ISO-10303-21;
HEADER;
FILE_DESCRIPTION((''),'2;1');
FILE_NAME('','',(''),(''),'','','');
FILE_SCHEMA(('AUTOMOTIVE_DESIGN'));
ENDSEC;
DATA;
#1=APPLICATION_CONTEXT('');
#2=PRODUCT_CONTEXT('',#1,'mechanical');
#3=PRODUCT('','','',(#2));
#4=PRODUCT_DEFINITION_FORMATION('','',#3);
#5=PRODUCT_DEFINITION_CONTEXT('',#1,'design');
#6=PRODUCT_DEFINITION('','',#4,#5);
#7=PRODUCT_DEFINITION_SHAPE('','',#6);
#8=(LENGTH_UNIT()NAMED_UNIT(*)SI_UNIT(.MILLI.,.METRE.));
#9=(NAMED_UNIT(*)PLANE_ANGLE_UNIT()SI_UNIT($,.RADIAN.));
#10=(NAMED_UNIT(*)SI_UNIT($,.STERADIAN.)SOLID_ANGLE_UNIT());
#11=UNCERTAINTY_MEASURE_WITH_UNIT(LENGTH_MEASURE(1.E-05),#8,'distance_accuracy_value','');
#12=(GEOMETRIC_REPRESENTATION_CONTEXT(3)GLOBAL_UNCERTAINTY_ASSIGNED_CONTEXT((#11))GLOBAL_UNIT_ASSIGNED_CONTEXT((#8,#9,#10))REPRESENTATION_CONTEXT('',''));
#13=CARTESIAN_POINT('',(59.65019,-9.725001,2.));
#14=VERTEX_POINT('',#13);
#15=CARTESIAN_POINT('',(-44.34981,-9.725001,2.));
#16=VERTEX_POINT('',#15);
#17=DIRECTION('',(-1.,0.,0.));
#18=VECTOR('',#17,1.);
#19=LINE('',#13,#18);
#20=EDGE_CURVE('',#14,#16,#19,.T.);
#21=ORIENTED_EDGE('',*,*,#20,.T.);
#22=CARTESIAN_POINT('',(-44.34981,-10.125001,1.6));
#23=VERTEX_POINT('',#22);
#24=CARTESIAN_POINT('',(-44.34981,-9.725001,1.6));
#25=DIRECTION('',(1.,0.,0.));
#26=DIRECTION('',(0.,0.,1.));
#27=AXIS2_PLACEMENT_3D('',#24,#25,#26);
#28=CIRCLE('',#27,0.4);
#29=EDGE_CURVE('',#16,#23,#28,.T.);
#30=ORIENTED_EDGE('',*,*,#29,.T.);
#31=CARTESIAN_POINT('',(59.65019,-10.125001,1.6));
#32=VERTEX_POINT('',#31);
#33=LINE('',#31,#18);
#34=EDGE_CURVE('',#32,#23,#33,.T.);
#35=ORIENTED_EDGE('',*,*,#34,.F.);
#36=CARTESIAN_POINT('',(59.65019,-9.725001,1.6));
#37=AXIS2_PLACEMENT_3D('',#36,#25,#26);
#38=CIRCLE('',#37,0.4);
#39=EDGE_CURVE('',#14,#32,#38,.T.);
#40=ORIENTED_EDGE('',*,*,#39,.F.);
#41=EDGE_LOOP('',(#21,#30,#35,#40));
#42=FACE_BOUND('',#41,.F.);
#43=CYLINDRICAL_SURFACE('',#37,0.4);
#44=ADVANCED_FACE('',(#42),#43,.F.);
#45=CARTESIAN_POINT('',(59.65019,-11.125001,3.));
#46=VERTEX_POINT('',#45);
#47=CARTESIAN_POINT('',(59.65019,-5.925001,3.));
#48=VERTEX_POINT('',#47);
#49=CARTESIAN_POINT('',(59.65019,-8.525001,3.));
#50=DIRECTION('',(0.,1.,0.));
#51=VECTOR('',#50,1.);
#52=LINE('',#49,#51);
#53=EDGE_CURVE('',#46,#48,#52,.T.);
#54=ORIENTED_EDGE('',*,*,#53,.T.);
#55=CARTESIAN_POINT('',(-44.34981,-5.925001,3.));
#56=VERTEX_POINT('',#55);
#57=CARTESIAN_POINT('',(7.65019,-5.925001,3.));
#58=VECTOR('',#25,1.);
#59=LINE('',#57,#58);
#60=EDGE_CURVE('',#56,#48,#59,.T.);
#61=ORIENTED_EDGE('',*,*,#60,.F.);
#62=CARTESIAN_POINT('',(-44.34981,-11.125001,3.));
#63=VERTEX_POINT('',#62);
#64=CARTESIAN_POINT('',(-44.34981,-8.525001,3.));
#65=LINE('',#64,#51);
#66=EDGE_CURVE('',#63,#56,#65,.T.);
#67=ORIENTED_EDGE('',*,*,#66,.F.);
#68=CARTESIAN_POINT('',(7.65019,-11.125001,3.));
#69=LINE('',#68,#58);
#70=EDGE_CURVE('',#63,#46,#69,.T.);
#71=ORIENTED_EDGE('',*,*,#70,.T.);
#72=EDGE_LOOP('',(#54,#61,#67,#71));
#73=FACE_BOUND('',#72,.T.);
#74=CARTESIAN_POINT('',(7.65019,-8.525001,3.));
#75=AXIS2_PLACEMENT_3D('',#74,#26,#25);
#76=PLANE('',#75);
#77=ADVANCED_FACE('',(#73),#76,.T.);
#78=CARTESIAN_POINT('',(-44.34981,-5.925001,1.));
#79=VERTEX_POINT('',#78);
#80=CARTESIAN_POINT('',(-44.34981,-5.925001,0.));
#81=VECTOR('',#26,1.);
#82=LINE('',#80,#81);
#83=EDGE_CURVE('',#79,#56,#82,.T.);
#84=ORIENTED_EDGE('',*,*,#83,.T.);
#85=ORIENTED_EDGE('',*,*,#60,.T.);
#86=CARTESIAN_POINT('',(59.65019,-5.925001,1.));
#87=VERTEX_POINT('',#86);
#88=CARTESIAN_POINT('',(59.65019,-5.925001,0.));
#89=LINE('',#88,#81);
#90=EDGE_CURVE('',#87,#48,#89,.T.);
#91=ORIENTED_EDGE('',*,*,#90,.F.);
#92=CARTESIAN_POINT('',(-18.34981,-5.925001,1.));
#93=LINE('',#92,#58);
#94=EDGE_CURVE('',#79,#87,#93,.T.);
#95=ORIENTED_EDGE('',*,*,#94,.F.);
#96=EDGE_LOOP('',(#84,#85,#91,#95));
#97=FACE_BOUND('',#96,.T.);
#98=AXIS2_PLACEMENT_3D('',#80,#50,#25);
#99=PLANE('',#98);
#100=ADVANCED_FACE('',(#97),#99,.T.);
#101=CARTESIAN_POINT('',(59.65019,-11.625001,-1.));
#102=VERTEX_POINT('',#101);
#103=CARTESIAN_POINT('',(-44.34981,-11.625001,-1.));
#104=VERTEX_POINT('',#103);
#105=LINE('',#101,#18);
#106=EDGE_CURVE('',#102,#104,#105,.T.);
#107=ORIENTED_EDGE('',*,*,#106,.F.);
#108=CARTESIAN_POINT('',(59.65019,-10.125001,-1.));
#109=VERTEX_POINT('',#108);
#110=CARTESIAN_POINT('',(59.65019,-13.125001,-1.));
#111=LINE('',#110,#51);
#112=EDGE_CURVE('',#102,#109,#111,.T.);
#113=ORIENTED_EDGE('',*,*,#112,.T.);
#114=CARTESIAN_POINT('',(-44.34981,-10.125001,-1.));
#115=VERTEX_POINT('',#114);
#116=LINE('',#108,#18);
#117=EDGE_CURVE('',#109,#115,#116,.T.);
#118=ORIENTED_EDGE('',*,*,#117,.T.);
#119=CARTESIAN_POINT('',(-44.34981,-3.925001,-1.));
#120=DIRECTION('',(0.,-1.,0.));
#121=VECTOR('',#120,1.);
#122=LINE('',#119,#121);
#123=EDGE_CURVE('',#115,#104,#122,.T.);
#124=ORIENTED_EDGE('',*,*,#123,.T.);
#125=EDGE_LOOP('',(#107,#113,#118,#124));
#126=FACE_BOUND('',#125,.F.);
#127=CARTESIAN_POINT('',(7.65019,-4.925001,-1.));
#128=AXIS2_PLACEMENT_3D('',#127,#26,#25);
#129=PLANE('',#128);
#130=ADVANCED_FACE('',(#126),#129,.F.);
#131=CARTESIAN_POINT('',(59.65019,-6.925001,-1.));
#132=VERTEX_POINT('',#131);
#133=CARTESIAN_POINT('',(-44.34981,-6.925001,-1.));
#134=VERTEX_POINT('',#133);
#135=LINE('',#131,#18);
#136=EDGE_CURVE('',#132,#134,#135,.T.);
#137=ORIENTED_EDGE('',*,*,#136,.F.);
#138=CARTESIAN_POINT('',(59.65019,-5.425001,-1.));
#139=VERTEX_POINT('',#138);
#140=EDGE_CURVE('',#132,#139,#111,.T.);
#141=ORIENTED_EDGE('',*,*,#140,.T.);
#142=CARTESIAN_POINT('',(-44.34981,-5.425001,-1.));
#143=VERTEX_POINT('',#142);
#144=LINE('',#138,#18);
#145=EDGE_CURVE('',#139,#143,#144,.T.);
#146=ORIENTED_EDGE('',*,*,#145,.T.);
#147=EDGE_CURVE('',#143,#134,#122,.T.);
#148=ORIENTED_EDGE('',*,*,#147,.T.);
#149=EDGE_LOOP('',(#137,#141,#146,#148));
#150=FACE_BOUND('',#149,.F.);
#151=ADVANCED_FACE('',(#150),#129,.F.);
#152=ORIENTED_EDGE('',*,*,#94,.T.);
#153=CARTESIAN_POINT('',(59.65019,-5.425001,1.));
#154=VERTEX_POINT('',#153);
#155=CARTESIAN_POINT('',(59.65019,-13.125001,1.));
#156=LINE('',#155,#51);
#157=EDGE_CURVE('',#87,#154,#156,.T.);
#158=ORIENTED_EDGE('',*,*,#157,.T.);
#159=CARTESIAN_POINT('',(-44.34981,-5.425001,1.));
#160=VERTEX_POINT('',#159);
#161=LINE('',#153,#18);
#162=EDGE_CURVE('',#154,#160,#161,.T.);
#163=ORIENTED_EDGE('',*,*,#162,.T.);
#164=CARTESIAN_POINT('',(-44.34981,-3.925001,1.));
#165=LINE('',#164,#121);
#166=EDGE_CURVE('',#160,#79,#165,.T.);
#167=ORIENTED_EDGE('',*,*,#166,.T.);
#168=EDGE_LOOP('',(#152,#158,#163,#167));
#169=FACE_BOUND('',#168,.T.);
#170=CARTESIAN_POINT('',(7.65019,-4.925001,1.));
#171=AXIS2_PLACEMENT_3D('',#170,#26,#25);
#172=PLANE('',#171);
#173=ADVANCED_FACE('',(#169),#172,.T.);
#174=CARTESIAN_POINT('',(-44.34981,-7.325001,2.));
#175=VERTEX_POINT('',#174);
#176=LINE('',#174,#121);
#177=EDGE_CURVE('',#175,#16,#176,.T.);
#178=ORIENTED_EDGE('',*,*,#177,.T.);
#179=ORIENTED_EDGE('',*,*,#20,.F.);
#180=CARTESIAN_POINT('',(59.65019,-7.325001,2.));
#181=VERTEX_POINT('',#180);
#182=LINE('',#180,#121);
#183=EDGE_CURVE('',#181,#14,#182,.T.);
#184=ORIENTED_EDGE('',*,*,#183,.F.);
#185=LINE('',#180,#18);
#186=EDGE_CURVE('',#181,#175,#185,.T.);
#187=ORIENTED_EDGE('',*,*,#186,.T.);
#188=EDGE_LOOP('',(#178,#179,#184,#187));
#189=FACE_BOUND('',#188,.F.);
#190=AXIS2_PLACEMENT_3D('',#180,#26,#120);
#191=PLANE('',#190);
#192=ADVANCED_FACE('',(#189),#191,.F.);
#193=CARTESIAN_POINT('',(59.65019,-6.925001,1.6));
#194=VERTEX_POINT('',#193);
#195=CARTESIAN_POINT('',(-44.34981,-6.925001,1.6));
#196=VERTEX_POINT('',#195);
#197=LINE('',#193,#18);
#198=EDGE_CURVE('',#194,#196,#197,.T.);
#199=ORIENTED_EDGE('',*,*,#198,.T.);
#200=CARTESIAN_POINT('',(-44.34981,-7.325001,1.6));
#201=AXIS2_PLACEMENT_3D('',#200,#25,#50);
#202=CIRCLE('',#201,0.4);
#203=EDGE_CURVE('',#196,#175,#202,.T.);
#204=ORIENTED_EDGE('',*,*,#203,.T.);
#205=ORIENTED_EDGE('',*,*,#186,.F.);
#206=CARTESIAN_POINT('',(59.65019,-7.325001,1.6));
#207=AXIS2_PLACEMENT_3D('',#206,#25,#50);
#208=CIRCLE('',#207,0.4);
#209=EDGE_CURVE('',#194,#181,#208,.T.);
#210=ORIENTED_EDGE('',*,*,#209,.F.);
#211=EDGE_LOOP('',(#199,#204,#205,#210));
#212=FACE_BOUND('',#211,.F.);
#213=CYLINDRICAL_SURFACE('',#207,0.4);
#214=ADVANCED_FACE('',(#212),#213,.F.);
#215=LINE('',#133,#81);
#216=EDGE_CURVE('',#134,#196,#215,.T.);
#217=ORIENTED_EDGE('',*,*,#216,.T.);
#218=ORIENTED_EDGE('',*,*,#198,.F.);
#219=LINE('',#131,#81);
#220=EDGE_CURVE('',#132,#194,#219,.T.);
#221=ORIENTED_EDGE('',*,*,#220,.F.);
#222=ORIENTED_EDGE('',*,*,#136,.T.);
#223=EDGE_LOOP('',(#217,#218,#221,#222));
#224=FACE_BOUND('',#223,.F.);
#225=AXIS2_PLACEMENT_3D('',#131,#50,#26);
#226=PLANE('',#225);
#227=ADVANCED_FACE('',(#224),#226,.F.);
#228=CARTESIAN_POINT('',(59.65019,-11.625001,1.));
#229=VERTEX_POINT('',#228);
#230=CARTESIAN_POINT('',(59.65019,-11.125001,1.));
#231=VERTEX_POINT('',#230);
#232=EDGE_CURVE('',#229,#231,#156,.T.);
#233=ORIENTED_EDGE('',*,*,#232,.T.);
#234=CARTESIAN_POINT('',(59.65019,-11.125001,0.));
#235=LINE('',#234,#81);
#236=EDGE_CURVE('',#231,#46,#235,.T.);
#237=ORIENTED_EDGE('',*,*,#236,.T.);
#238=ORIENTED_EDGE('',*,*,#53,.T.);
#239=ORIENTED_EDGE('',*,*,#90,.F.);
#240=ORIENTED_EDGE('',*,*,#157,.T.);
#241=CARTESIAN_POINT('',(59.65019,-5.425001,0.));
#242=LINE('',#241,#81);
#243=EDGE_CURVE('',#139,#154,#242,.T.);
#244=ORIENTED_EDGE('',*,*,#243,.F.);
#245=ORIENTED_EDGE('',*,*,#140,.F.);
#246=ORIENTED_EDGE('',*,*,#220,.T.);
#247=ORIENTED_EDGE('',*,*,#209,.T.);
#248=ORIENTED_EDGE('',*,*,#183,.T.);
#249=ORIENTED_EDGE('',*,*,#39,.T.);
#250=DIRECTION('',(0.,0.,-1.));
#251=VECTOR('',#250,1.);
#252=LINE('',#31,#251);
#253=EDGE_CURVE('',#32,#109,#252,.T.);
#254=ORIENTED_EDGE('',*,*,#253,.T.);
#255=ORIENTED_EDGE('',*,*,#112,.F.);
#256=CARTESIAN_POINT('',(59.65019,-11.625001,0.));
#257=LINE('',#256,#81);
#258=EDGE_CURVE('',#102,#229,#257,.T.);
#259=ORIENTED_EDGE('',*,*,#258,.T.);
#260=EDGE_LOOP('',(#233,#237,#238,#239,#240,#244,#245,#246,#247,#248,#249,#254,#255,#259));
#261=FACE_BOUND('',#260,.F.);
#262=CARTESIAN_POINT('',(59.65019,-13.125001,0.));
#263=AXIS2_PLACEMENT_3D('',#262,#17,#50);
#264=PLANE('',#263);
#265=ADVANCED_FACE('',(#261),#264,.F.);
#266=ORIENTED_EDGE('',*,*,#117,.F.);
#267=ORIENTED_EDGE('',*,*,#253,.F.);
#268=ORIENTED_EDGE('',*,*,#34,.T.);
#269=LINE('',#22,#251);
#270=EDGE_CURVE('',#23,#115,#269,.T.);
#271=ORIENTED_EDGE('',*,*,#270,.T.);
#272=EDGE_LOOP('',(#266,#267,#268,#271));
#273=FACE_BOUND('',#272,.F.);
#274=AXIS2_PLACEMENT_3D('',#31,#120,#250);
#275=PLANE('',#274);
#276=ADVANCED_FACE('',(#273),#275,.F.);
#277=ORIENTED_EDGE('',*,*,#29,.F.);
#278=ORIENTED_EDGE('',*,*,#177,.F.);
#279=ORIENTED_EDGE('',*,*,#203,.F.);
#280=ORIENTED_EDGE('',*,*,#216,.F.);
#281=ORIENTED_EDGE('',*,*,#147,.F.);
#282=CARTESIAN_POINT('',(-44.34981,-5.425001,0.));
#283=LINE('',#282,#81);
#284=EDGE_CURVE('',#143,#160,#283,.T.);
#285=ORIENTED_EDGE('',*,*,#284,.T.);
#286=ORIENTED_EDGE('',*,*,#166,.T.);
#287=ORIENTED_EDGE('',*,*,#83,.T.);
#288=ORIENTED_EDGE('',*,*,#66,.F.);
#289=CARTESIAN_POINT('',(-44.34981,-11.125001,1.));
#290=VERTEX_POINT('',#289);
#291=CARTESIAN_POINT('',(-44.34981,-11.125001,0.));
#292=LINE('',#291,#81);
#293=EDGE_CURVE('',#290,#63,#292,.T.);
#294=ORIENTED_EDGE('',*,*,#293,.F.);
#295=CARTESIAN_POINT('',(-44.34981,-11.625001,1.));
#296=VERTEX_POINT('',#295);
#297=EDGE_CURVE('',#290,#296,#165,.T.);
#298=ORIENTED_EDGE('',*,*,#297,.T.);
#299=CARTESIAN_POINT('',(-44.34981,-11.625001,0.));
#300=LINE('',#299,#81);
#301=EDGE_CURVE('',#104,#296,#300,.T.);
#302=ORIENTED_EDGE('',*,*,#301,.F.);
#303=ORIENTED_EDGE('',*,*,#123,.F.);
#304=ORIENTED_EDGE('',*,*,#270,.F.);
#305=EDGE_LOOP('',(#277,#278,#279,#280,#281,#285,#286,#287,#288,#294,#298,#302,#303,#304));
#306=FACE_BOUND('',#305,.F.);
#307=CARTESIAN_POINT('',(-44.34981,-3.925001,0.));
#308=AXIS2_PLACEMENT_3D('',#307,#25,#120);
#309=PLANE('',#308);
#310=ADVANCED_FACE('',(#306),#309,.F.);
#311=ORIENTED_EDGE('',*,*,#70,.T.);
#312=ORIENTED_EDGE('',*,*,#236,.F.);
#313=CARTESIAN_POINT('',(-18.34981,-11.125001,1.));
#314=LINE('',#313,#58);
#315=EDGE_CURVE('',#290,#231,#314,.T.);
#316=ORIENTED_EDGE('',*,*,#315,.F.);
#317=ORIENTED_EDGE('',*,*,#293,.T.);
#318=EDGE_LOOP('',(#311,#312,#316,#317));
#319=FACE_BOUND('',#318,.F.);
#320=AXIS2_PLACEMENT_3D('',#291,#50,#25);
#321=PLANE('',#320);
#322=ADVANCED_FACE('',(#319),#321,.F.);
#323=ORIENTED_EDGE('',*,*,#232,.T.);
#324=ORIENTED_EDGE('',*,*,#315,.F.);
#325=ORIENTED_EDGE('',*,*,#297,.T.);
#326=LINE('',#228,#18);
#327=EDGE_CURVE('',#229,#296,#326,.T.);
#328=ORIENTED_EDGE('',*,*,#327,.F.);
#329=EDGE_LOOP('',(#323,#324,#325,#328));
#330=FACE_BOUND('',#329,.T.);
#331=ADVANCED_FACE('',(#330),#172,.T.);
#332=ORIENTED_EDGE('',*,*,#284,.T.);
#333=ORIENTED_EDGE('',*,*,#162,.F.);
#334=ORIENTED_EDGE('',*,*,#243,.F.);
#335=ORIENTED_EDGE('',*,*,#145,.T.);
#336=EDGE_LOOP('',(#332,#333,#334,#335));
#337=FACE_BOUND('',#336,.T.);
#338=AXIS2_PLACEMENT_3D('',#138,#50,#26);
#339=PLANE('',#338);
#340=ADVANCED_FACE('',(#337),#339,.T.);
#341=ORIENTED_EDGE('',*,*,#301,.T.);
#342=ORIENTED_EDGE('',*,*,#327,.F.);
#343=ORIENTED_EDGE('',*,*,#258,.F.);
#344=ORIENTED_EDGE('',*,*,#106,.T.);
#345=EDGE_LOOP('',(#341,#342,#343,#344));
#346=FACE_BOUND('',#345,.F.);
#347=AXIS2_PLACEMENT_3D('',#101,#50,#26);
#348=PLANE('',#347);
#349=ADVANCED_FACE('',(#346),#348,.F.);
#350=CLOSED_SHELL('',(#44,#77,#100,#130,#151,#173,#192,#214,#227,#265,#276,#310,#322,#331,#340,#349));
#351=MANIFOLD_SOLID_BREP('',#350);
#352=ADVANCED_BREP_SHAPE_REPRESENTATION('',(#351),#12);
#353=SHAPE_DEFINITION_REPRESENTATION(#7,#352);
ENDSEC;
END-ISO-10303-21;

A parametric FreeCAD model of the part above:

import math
import FreeCAD as App
import Part
import Sketcher
from FreeCAD import Vector

doc = App.newDocument("Part")
params = doc.addObject("Spreadsheet::Sheet", "Params")
for row, (alias, value) in enumerate([
    ("sketch1_width", "104 mm"),
    ("sketch1_height", "5.2 mm"),
    ("pad1_length", "3 mm"),
    ("sketch2_width", "104 mm"),
    ("sketch2_height", "9.2 mm"),
    ("pad2_length", "1 mm"),
    ("pad2_length2", "1 mm"),
    ("sketch3_radius", "0.4 mm"),
    ("sketch3_height", "2 mm"),
    ("sketch3_width", "1.5 mm"),
    ("sketch3_width2", "3.2 mm"),
    ("sketch3_height2", "2.6 mm"),
    ("pocket1_length", "104 mm"),
], start=1):
    params.set(f"A{row}", alias)
    params.set(f"B{row}", "=" + value)
    params.setAlias(f"B{row}", alias)

body = doc.addObject("PartDesign::Body", "Body")

# Sketch on XY plane
sketch1 = body.newObject("Sketcher::SketchObject", "Sketch")
sketch1.AttachmentSupport = (doc.getObject("XY_Plane"), [""])
sketch1.MapMode = "FlatFace"
sketch1.addGeometry(Part.LineSegment(Vector(-44.34981, -5.925001, 0), Vector(-44.34981, -11.125001, 0)), False)
sketch1.addGeometry(Part.LineSegment(Vector(-44.34981, -11.125001, 0), Vector(59.65019, -11.125001, 0)), False)
sketch1.addGeometry(Part.LineSegment(Vector(59.65019, -11.125001, 0), Vector(59.65019, -5.925001, 0)), False)
sketch1.addGeometry(Part.LineSegment(Vector(59.65019, -5.925001, 0), Vector(-44.34981, -5.925001, 0)), False)
sketch1.addConstraint(Sketcher.Constraint("Coincident", 0, 2, 1, 1))
sketch1.addConstraint(Sketcher.Constraint("Coincident", 1, 2, 2, 1))
sketch1.addConstraint(Sketcher.Constraint("Coincident", 2, 2, 3, 1))
sketch1.addConstraint(Sketcher.Constraint("Coincident", 3, 2, 0, 1))
sketch1.addConstraint(Sketcher.Constraint("Vertical", 0))
sketch1.addConstraint(Sketcher.Constraint("Horizontal", 1))
sketch1.addConstraint(Sketcher.Constraint("Vertical", 2))
sketch1.addConstraint(Sketcher.Constraint("Horizontal", 3))
sketch1.addConstraint(Sketcher.Constraint("DistanceX", 1, 1, 1, 2, 104.0))
sketch1.addConstraint(Sketcher.Constraint("DistanceY", 0, 2, 0, 1, 5.2))
sketch1.addConstraint(Sketcher.Constraint("DistanceY", 0, 2, -1, 1, 11.125001))
sketch1.addConstraint(Sketcher.Constraint("DistanceX", 0, 2, -1, 1, 44.34981))
sketch1.setExpression("Constraints[8]", "Params.sketch1_width")
sketch1.setExpression("Constraints[9]", "Params.sketch1_height")
pad1 = body.newObject("PartDesign::Pad", "Pad")
pad1.Profile = sketch1
pad1.setExpression("Length", "Params.pad1_length")

# Sketch on XY plane
sketch2 = body.newObject("Sketcher::SketchObject", "Sketch001")
sketch2.AttachmentSupport = (doc.getObject("XY_Plane"), [""])
sketch2.MapMode = "FlatFace"
sketch2.addGeometry(Part.LineSegment(Vector(-44.34981, -3.925001, 0), Vector(-44.34981, -13.125001, 0)), False)
sketch2.addGeometry(Part.LineSegment(Vector(-44.34981, -13.125001, 0), Vector(59.65019, -13.125001, 0)), False)
sketch2.addGeometry(Part.LineSegment(Vector(59.65019, -13.125001, 0), Vector(59.65019, -3.925001, 0)), False)
sketch2.addGeometry(Part.LineSegment(Vector(59.65019, -3.925001, 0), Vector(-44.34981, -3.925001, 0)), False)
sketch2.addConstraint(Sketcher.Constraint("Coincident", 0, 2, 1, 1))
sketch2.addConstraint(Sketcher.Constraint("Coincident", 1, 2, 2, 1))
sketch2.addConstraint(Sketcher.Constraint("Coincident", 2, 2, 3, 1))
sketch2.addConstraint(Sketcher.Constraint("Coincident", 3, 2, 0, 1))
sketch2.addConstraint(Sketcher.Constraint("Vertical", 0))
sketch2.addConstraint(Sketcher.Constraint("Horizontal", 1))
sketch2.addConstraint(Sketcher.Constraint("Vertical", 2))
sketch2.addConstraint(Sketcher.Constraint("Horizontal", 3))
sketch2.addConstraint(Sketcher.Constraint("DistanceX", 1, 1, 1, 2, 104.0))
sketch2.addConstraint(Sketcher.Constraint("DistanceY", 0, 2, 0, 1, 9.2))
sketch2.addConstraint(Sketcher.Constraint("DistanceY", 0, 2, -1, 1, 13.125001))
sketch2.addConstraint(Sketcher.Constraint("DistanceX", 0, 2, -1, 1, 44.34981))
sketch2.setExpression("Constraints[8]", "Params.sketch2_width")
sketch2.setExpression("Constraints[9]", "Params.sketch2_height")
pad2 = body.newObject("PartDesign::Pad", "Pad001")
pad2.Profile = sketch2
pad2.Type = "TwoLengths"
pad2.setExpression("Length", "Params.pad2_length")
pad2.setExpression("Length2", "Params.pad2_length2")
pad2.Reversed = True

# Sketch on YZ plane
sketch3 = body.newObject("Sketcher::SketchObject", "Sketch002")
sketch3.AttachmentSupport = (doc.getObject("YZ_Plane"), [""])
sketch3.MapMode = "FlatFace"
sketch3.AttachmentOffset = App.Placement(Vector(0, 0, 59.65019), App.Rotation())
sketch3.addGeometry(Part.LineSegment(Vector(-13.125001, 1, 0), Vector(-13.125001, -1, 0)), False)
sketch3.addGeometry(Part.LineSegment(Vector(-13.125001, -1, 0), Vector(-11.625001, -1, 0)), False)
sketch3.addGeometry(Part.LineSegment(Vector(-11.625001, -1, 0), Vector(-11.625001, 1, 0)), False)
sketch3.addGeometry(Part.LineSegment(Vector(-11.625001, 1, 0), Vector(-13.125001, 1, 0)), False)
sketch3.addGeometry(Part.LineSegment(Vector(-10.125001, -1, 0), Vector(-6.925001, -1, 0)), False)
sketch3.addGeometry(Part.LineSegment(Vector(-6.925001, -1, 0), Vector(-6.925001, 1.6, 0)), False)
sketch3.addGeometry(Part.ArcOfCircle(Part.Circle(Vector(-7.325001, 1.6, 0), Vector(0, 0, 1), 0.4), math.radians(0), math.radians(90)), False)
sketch3.addGeometry(Part.LineSegment(Vector(-7.325001, 2, 0), Vector(-9.725001, 2, 0)), False)
sketch3.addGeometry(Part.ArcOfCircle(Part.Circle(Vector(-9.725001, 1.6, 0), Vector(0, 0, 1), 0.4), math.radians(90), math.radians(180)), False)
sketch3.addGeometry(Part.LineSegment(Vector(-10.125001, 1.6, 0), Vector(-10.125001, -1, 0)), False)
sketch3.addGeometry(Part.LineSegment(Vector(-5.425001, 1, 0), Vector(-5.425001, -1, 0)), False)
sketch3.addGeometry(Part.LineSegment(Vector(-5.425001, -1, 0), Vector(-3.925001, -1, 0)), False)
sketch3.addGeometry(Part.LineSegment(Vector(-3.925001, -1, 0), Vector(-3.925001, 1, 0)), False)
sketch3.addGeometry(Part.LineSegment(Vector(-3.925001, 1, 0), Vector(-5.425001, 1, 0)), False)
sketch3.addConstraint(Sketcher.Constraint("Coincident", 0, 2, 1, 1))
sketch3.addConstraint(Sketcher.Constraint("Coincident", 1, 2, 2, 1))
sketch3.addConstraint(Sketcher.Constraint("Coincident", 2, 2, 3, 1))
sketch3.addConstraint(Sketcher.Constraint("Coincident", 3, 2, 0, 1))
sketch3.addConstraint(Sketcher.Constraint("Coincident", 4, 2, 5, 1))
sketch3.addConstraint(Sketcher.Constraint("Tangent", 5, 2, 6, 1))
sketch3.addConstraint(Sketcher.Constraint("Tangent", 6, 2, 7, 1))
sketch3.addConstraint(Sketcher.Constraint("Tangent", 7, 2, 8, 1))
sketch3.addConstraint(Sketcher.Constraint("Tangent", 8, 2, 9, 1))
sketch3.addConstraint(Sketcher.Constraint("Coincident", 9, 2, 4, 1))
sketch3.addConstraint(Sketcher.Constraint("Coincident", 10, 2, 11, 1))
sketch3.addConstraint(Sketcher.Constraint("Coincident", 11, 2, 12, 1))
sketch3.addConstraint(Sketcher.Constraint("Coincident", 12, 2, 13, 1))
sketch3.addConstraint(Sketcher.Constraint("Coincident", 13, 2, 10, 1))
sketch3.addConstraint(Sketcher.Constraint("Vertical", 0))
sketch3.addConstraint(Sketcher.Constraint("Horizontal", 1))
sketch3.addConstraint(Sketcher.Constraint("Vertical", 2))
sketch3.addConstraint(Sketcher.Constraint("Horizontal", 3))
sketch3.addConstraint(Sketcher.Constraint("Horizontal", 4))
sketch3.addConstraint(Sketcher.Constraint("Vertical", 5))
sketch3.addConstraint(Sketcher.Constraint("Horizontal", 7))
sketch3.addConstraint(Sketcher.Constraint("Vertical", 9))
sketch3.addConstraint(Sketcher.Constraint("Vertical", 10))
sketch3.addConstraint(Sketcher.Constraint("Horizontal", 11))
sketch3.addConstraint(Sketcher.Constraint("Vertical", 12))
sketch3.addConstraint(Sketcher.Constraint("Horizontal", 13))
sketch3.addConstraint(Sketcher.Constraint("Equal", 6, 8))
sketch3.addConstraint(Sketcher.Constraint("Horizontal", 1, 2, 4, 2))
sketch3.addConstraint(Sketcher.Constraint("Horizontal", 9, 2, 10, 2))
sketch3.addConstraint(Sketcher.Constraint("Horizontal", 3, 2, 12, 2))
sketch3.addConstraint(Sketcher.Constraint("Equal", 3, 11))
sketch3.addConstraint(Sketcher.Constraint("Radius", 6, 0.4))
sketch3.addConstraint(Sketcher.Constraint("DistanceY", 0, 2, 0, 1, 2.0))
sketch3.addConstraint(Sketcher.Constraint("DistanceX", 1, 1, 1, 2, 1.5))
sketch3.addConstraint(Sketcher.Constraint("DistanceX", 4, 1, 4, 2, 3.2))
sketch3.addConstraint(Sketcher.Constraint("DistanceY", 5, 1, 5, 2, 2.6))
sketch3.addConstraint(Sketcher.Constraint("DistanceY", 0, 2, -1, 1, 1.0))
sketch3.addConstraint(Sketcher.Constraint("DistanceX", 0, 2, 9, 2, 3.0))
sketch3.addConstraint(Sketcher.Constraint("DistanceX", 4, 2, 11, 2, 3.0))
sketch3.addConstraint(Sketcher.Constraint("DistanceX", 6, 3, -1, 1, 7.325001))
sketch3.setExpression("Constraints[31]", "Params.sketch3_radius")
sketch3.setExpression("Constraints[32]", "Params.sketch3_height")
sketch3.setExpression("Constraints[33]", "Params.sketch3_width")
sketch3.setExpression("Constraints[34]", "Params.sketch3_width2")
sketch3.setExpression("Constraints[35]", "Params.sketch3_height2")
pocket1 = body.newObject("PartDesign::Pocket", "Pocket")
pocket1.Profile = sketch3
pocket1.setExpression("Length", "Params.pocket1_length")

doc.recompute()
